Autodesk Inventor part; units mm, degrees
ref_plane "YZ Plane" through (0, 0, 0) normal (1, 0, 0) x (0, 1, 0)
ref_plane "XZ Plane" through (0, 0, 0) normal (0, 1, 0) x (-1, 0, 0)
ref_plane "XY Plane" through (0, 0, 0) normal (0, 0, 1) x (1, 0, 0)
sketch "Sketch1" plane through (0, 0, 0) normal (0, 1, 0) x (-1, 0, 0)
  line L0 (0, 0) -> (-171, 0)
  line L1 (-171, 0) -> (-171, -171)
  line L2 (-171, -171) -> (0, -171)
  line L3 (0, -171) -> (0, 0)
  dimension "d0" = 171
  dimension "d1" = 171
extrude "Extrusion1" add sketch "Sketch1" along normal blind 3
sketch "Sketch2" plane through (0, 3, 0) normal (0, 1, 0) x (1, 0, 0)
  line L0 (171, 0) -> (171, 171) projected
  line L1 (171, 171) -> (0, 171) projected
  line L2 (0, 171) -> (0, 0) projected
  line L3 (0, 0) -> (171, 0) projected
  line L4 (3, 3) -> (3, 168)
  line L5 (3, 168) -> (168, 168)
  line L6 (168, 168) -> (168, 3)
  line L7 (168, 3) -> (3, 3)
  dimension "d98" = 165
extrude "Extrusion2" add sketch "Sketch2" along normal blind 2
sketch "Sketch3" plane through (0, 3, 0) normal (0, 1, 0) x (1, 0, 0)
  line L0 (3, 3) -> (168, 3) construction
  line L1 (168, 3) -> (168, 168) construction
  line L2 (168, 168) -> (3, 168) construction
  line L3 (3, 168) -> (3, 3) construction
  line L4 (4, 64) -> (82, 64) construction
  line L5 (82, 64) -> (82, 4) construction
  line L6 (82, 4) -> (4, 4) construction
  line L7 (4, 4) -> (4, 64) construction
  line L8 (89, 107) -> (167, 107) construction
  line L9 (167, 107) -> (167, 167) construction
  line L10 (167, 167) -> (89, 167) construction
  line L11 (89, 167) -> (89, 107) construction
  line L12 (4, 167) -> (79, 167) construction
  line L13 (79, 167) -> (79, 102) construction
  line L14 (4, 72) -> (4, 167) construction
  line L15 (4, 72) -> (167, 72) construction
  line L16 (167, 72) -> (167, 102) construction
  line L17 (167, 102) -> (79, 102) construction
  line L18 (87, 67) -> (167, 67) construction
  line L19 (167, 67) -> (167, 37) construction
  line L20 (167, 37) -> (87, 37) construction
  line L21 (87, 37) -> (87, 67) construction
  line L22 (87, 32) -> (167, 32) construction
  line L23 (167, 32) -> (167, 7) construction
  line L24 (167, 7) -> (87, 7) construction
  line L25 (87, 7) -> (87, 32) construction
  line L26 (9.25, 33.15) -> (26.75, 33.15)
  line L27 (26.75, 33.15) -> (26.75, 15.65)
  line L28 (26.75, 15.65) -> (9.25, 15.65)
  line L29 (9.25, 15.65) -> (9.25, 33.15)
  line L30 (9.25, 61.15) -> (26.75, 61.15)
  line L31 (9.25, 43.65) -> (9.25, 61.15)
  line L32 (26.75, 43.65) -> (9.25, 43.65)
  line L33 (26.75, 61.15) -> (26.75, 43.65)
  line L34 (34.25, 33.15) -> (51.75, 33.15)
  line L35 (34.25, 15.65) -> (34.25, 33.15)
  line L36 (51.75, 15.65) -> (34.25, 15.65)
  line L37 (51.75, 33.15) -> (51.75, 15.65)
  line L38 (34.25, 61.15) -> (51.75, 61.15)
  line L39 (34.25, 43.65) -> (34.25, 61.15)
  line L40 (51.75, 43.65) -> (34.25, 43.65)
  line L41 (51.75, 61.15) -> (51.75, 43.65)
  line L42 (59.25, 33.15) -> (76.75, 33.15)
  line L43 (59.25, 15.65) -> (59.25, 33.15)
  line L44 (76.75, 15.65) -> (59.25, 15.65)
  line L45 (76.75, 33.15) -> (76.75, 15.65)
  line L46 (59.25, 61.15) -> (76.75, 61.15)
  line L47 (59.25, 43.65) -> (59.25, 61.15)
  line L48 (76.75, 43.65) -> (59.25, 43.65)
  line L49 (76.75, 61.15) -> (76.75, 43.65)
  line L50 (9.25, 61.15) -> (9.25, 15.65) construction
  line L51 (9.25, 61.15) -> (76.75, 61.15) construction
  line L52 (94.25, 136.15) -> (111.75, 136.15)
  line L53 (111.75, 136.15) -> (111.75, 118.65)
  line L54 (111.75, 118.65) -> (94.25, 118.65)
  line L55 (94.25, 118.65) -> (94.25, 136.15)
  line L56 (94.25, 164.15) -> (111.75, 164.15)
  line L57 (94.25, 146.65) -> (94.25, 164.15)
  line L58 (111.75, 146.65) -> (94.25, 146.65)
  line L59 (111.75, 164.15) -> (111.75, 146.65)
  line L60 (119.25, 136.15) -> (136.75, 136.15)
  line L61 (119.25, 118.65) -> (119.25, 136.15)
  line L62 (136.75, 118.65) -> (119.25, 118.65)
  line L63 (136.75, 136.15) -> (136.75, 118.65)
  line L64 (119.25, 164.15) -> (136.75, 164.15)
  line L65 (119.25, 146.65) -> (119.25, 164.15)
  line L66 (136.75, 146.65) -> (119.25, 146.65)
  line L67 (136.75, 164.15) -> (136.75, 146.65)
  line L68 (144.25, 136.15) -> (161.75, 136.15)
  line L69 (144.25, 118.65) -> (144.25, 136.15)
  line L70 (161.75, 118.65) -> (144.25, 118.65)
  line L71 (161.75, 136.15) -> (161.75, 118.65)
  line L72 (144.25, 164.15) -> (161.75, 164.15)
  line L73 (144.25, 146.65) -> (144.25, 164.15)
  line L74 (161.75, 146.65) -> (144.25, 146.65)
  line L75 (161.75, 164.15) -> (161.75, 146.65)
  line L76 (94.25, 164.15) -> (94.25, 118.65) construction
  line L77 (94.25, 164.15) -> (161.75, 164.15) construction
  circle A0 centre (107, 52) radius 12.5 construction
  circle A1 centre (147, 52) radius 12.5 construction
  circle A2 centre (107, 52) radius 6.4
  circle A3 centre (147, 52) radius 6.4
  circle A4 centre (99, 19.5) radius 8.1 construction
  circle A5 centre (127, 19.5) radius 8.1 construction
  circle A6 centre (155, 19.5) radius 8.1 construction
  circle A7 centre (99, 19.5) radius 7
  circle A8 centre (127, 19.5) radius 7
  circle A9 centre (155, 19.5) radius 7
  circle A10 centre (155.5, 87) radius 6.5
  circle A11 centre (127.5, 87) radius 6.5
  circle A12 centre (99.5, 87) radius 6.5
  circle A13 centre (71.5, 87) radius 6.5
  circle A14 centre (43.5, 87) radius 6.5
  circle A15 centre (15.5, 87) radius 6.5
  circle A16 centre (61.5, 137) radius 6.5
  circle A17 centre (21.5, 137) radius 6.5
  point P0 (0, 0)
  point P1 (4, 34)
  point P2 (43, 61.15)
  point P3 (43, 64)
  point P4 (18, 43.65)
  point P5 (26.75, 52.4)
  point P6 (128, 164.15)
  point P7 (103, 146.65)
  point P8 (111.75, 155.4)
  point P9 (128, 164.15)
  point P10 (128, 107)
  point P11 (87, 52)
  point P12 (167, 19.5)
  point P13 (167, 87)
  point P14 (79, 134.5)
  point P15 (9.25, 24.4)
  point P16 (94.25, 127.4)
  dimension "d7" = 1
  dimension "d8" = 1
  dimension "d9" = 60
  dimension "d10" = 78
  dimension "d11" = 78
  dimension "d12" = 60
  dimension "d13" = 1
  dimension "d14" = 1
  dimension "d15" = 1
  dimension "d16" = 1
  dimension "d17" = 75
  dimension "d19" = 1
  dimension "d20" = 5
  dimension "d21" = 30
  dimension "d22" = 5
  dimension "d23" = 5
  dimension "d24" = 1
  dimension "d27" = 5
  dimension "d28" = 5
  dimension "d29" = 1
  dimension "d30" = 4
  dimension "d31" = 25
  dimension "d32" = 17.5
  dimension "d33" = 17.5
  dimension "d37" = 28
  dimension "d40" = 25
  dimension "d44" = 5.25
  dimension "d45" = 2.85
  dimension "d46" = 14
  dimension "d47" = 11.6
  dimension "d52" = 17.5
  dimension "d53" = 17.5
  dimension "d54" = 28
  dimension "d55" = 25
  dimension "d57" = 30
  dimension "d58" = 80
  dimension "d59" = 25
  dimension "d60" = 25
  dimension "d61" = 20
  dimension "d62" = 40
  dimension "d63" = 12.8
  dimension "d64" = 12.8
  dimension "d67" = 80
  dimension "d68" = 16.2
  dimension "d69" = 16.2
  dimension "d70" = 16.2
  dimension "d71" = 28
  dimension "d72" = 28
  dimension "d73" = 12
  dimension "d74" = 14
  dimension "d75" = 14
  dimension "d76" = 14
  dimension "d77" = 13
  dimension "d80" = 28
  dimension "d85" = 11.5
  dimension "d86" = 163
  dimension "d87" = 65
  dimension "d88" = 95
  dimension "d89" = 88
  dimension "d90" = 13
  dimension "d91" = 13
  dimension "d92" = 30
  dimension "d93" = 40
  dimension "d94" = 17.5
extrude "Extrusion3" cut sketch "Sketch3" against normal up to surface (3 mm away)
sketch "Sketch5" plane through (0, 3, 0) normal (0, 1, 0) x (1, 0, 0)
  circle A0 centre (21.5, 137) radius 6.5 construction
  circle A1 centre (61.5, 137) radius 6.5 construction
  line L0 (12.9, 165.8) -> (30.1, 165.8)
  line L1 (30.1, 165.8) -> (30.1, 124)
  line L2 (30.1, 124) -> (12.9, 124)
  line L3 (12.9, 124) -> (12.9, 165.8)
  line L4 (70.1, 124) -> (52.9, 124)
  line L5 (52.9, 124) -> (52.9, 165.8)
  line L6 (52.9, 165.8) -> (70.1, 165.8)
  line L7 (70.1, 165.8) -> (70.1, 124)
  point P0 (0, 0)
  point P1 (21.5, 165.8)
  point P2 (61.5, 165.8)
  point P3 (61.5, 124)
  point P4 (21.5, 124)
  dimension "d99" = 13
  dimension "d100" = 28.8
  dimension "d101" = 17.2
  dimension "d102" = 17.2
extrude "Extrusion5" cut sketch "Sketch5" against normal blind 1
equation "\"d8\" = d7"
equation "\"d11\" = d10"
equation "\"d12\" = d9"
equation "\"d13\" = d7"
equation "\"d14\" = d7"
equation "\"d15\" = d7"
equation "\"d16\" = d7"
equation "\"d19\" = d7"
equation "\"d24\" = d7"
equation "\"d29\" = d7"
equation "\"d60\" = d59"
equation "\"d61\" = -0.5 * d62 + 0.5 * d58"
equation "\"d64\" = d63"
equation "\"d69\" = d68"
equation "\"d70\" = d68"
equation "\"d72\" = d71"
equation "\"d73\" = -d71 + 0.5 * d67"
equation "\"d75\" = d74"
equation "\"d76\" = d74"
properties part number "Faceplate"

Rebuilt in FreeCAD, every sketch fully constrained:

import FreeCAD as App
import Part
import Sketcher

V = App.Vector

doc = App.newDocument("Part")
body = doc.addObject("PartDesign::Body", "Body")

# Sketch on XZ plane
sketch1 = body.newObject("Sketcher::SketchObject", "Sketch")
sketch1.AttachmentSupport = (doc.getObject("XZ_Plane"), [""])
sketch1.MapMode = "FlatFace"
sketch1.addGeometry(Part.LineSegment(V(0, -171, 0), V(0, 0, 0)), False)
sketch1.addGeometry(Part.LineSegment(V(0, 0, 0), V(171, 0, 0)), False)
sketch1.addGeometry(Part.LineSegment(V(171, 0, 0), V(171, -171, 0)), False)
sketch1.addGeometry(Part.LineSegment(V(171, -171, 0), V(0, -171, 0)), False)
sketch1.addConstraint(Sketcher.Constraint("Coincident", 0, 2, 1, 1))
sketch1.addConstraint(Sketcher.Constraint("Coincident", 1, 2, 2, 1))
sketch1.addConstraint(Sketcher.Constraint("Coincident", 2, 2, 3, 1))
sketch1.addConstraint(Sketcher.Constraint("Coincident", 3, 2, 0, 1))
sketch1.addConstraint(Sketcher.Constraint("Vertical", 0))
sketch1.addConstraint(Sketcher.Constraint("Horizontal", 1))
sketch1.addConstraint(Sketcher.Constraint("Vertical", 2))
sketch1.addConstraint(Sketcher.Constraint("Horizontal", 3))
sketch1.addConstraint(Sketcher.Constraint("Coincident", 0, 2, -1, 1))
sketch1.addConstraint(Sketcher.Constraint("Equal", 3, 0))
sketch1.addConstraint(Sketcher.Constraint("DistanceX", 1, 1, 1, 2, 171.0))
pad1 = body.newObject("PartDesign::Pad", "Pad")
pad1.Profile = sketch1
pad1.Length = 3
pad1.Reversed = True

# Sketch on XZ plane
sketch2 = body.newObject("Sketcher::SketchObject", "Sketch001")
sketch2.AttachmentSupport = (doc.getObject("XZ_Plane"), [""])
sketch2.MapMode = "FlatFace"
sketch2.AttachmentOffset = App.Placement(V(0, 0, -3), App.Rotation())
sketch2.addGeometry(Part.LineSegment(V(0, 0, 0), V(171, 0, 0)), False)
sketch2.addGeometry(Part.LineSegment(V(171, 0, 0), V(171, -171, 0)), False)
sketch2.addGeometry(Part.LineSegment(V(171, -171, 0), V(0, -171, 0)), False)
sketch2.addGeometry(Part.LineSegment(V(0, -171, 0), V(0, 0, 0)), False)
sketch2.addGeometry(Part.LineSegment(V(168, -3, 0), V(3, -3, 0)), False)
sketch2.addGeometry(Part.LineSegment(V(3, -3, 0), V(3, -168, 0)), False)
sketch2.addGeometry(Part.LineSegment(V(3, -168, 0), V(168, -168, 0)), False)
sketch2.addGeometry(Part.LineSegment(V(168, -168, 0), V(168, -3, 0)), False)
sketch2.addConstraint(Sketcher.Constraint("Coincident", 0, 2, 1, 1))
sketch2.addConstraint(Sketcher.Constraint("Coincident", 1, 2, 2, 1))
sketch2.addConstraint(Sketcher.Constraint("Coincident", 2, 2, 3, 1))
sketch2.addConstraint(Sketcher.Constraint("Coincident", 3, 2, 0, 1))
sketch2.addConstraint(Sketcher.Constraint("Coincident", 4, 2, 5, 1))
sketch2.addConstraint(Sketcher.Constraint("Coincident", 5, 2, 6, 1))
sketch2.addConstraint(Sketcher.Constraint("Coincident", 6, 2, 7, 1))
sketch2.addConstraint(Sketcher.Constraint("Coincident", 7, 2, 4, 1))
sketch2.addConstraint(Sketcher.Constraint("Horizontal", 0))
sketch2.addConstraint(Sketcher.Constraint("Vertical", 1))
sketch2.addConstraint(Sketcher.Constraint("Horizontal", 2))
sketch2.addConstraint(Sketcher.Constraint("Vertical", 3))
sketch2.addConstraint(Sketcher.Constraint("Horizontal", 4))
sketch2.addConstraint(Sketcher.Constraint("Vertical", 5))
sketch2.addConstraint(Sketcher.Constraint("Horizontal", 6))
sketch2.addConstraint(Sketcher.Constraint("Vertical", 7))
sketch2.addConstraint(Sketcher.Constraint("Coincident", 3, 2, -1, 1))
sketch2.addConstraint(Sketcher.Constraint("Equal", 2, 1))
sketch2.addConstraint(Sketcher.Constraint("Equal", 6, 5))
sketch2.addConstraint(Sketcher.Constraint("DistanceX", 4, 2, 4, 1, 165.0))
sketch2.addConstraint(Sketcher.Constraint("DistanceX", 0, 1, 0, 2, 171.0))
sketch2.addConstraint(Sketcher.Constraint("DistanceX", -1, 1, 4, 2, 3.0))
sketch2.addConstraint(Sketcher.Constraint("DistanceY", 4, 2, -1, 1, 3.0))
pad2 = body.newObject("PartDesign::Pad", "Pad001")
pad2.Profile = sketch2
pad2.Length = 2
pad2.Reversed = True

# Sketch on XZ plane
sketch3 = body.newObject("Sketcher::SketchObject", "Sketch002")
sketch3.AttachmentSupport = (doc.getObject("XZ_Plane"), [""])
sketch3.MapMode = "FlatFace"
sketch3.AttachmentOffset = App.Placement(V(0, 0, -3), App.Rotation())
sketch3.addGeometry(Part.LineSegment(V(26.75, -33.15, 0), V(9.25, -33.15, 0)), False)
sketch3.addGeometry(Part.LineSegment(V(9.25, -33.15, 0), V(9.25, -15.65, 0)), False)
sketch3.addGeometry(Part.LineSegment(V(9.25, -15.65, 0), V(26.75, -15.65, 0)), False)
sketch3.addGeometry(Part.LineSegment(V(26.75, -15.65, 0), V(26.75, -33.15, 0)), False)
sketch3.addGeometry(Part.LineSegment(V(26.75, -61.15, 0), V(9.25, -61.15, 0)), False)
sketch3.addGeometry(Part.LineSegment(V(9.25, -61.15, 0), V(9.25, -43.65, 0)), False)
sketch3.addGeometry(Part.LineSegment(V(9.25, -43.65, 0), V(26.75, -43.65, 0)), False)
sketch3.addGeometry(Part.LineSegment(V(26.75, -43.65, 0), V(26.75, -61.15, 0)), False)
sketch3.addGeometry(Part.LineSegment(V(51.75, -33.15, 0), V(34.25, -33.15, 0)), False)
sketch3.addGeometry(Part.LineSegment(V(34.25, -33.15, 0), V(34.25, -15.65, 0)), False)
sketch3.addGeometry(Part.LineSegment(V(34.25, -15.65, 0), V(51.75, -15.65, 0)), False)
sketch3.addGeometry(Part.LineSegment(V(51.75, -15.65, 0), V(51.75, -33.15, 0)), False)
sketch3.addGeometry(Part.LineSegment(V(51.75, -61.15, 0), V(34.25, -61.15, 0)), False)
sketch3.addGeometry(Part.LineSegment(V(34.25, -61.15, 0), V(34.25, -43.65, 0)), False)
sketch3.addGeometry(Part.LineSegment(V(34.25, -43.65, 0), V(51.75, -43.65, 0)), False)
sketch3.addGeometry(Part.LineSegment(V(51.75, -43.65, 0), V(51.75, -61.15, 0)), False)
sketch3.addGeometry(Part.LineSegment(V(76.75, -33.15, 0), V(59.25, -33.15, 0)), False)
sketch3.addGeometry(Part.LineSegment(V(59.25, -33.15, 0), V(59.25, -15.65, 0)), False)
sketch3.addGeometry(Part.LineSegment(V(59.25, -15.65, 0), V(76.75, -15.65, 0)), False)
sketch3.addGeometry(Part.LineSegment(V(76.75, -15.65, 0), V(76.75, -33.15, 0)), False)
sketch3.addGeometry(Part.LineSegment(V(76.75, -61.15, 0), V(59.25, -61.15, 0)), False)
sketch3.addGeometry(Part.LineSegment(V(59.25, -61.15, 0), V(59.25, -43.65, 0)), False)
sketch3.addGeometry(Part.LineSegment(V(59.25, -43.65, 0), V(76.75, -43.65, 0)), False)
sketch3.addGeometry(Part.LineSegment(V(76.75, -43.65, 0), V(76.75, -61.15, 0)), False)
sketch3.addGeometry(Part.LineSegment(V(111.75, -136.15, 0), V(94.25, -136.15, 0)), False)
sketch3.addGeometry(Part.LineSegment(V(94.25, -136.15, 0), V(94.25, -118.65, 0)), False)
sketch3.addGeometry(Part.LineSegment(V(94.25, -118.65, 0), V(111.75, -118.65, 0)), False)
sketch3.addGeometry(Part.LineSegment(V(111.75, -118.65, 0), V(111.75, -136.15, 0)), False)
sketch3.addGeometry(Part.LineSegment(V(111.75, -164.15, 0), V(94.25, -164.15, 0)), False)
sketch3.addGeometry(Part.LineSegment(V(94.25, -164.15, 0), V(94.25, -146.65, 0)), False)
sketch3.addGeometry(Part.LineSegment(V(94.25, -146.65, 0), V(111.75, -146.65, 0)), False)
sketch3.addGeometry(Part.LineSegment(V(111.75, -146.65, 0), V(111.75, -164.15, 0)), False)
sketch3.addGeometry(Part.LineSegment(V(136.75, -136.15, 0), V(119.25, -136.15, 0)), False)
sketch3.addGeometry(Part.LineSegment(V(119.25, -136.15, 0), V(119.25, -118.65, 0)), False)
sketch3.addGeometry(Part.LineSegment(V(119.25, -118.65, 0), V(136.75, -118.65, 0)), False)
sketch3.addGeometry(Part.LineSegment(V(136.75, -118.65, 0), V(136.75, -136.15, 0)), False)
sketch3.addGeometry(Part.LineSegment(V(136.75, -164.15, 0), V(119.25, -164.15, 0)), False)
sketch3.addGeometry(Part.LineSegment(V(119.25, -164.15, 0), V(119.25, -146.65, 0)), False)
sketch3.addGeometry(Part.LineSegment(V(119.25, -146.65, 0), V(136.75, -146.65, 0)), False)
sketch3.addGeometry(Part.LineSegment(V(136.75, -146.65, 0), V(136.75, -164.15, 0)), False)
sketch3.addGeometry(Part.LineSegment(V(161.75, -136.15, 0), V(144.25, -136.15, 0)), False)
sketch3.addGeometry(Part.LineSegment(V(144.25, -136.15, 0), V(144.25, -118.65, 0)), False)
sketch3.addGeometry(Part.LineSegment(V(144.25, -118.65, 0), V(161.75, -118.65, 0)), False)
sketch3.addGeometry(Part.LineSegment(V(161.75, -118.65, 0), V(161.75, -136.15, 0)), False)
sketch3.addGeometry(Part.LineSegment(V(161.75, -164.15, 0), V(144.25, -164.15, 0)), False)
sketch3.addGeometry(Part.LineSegment(V(144.25, -164.15, 0), V(144.25, -146.65, 0)), False)
sketch3.addGeometry(Part.LineSegment(V(144.25, -146.65, 0), V(161.75, -146.65, 0)), False)
sketch3.addGeometry(Part.LineSegment(V(161.75, -146.65, 0), V(161.75, -164.15, 0)), False)
sketch3.addGeometry(Part.Circle(V(107, -52, 0), V(0, 0, 1), 6.4), False)
sketch3.addGeometry(Part.Circle(V(147, -52, 0), V(0, 0, 1), 6.4), False)
sketch3.addGeometry(Part.Circle(V(99, -19.5, 0), V(0, 0, 1), 7), False)
sketch3.addGeometry(Part.Circle(V(127, -19.5, 0), V(0, 0, 1), 7), False)
sketch3.addGeometry(Part.Circle(V(155, -19.5, 0), V(0, 0, 1), 7), False)
sketch3.addGeometry(Part.Circle(V(155.5, -87, 0), V(0, 0, 1), 6.5), False)
sketch3.addGeometry(Part.Circle(V(127.5, -87, 0), V(0, 0, 1), 6.5), False)
sketch3.addGeometry(Part.Circle(V(99.5, -87, 0), V(0, 0, 1), 6.5), False)
sketch3.addGeometry(Part.Circle(V(71.5, -87, 0), V(0, 0, 1), 6.5), False)
sketch3.addGeometry(Part.Circle(V(43.5, -87, 0), V(0, 0, 1), 6.5), False)
sketch3.addGeometry(Part.Circle(V(15.5, -87, 0), V(0, 0, 1), 6.5), False)
sketch3.addGeometry(Part.Circle(V(61.5, -137, 0), V(0, 0, 1), 6.5), False)
sketch3.addGeometry(Part.Circle(V(21.5, -137, 0), V(0, 0, 1), 6.5), False)
sketch3.addConstraint(Sketcher.Constraint("Coincident", 0, 2, 1, 1))
sketch3.addConstraint(Sketcher.Constraint("Coincident", 1, 2, 2, 1))
sketch3.addConstraint(Sketcher.Constraint("Coincident", 2, 2, 3, 1))
sketch3.addConstraint(Sketcher.Constraint("Coincident", 3, 2, 0, 1))
sketch3.addConstraint(Sketcher.Constraint("Coincident", 4, 2, 5, 1))
sketch3.addConstraint(Sketcher.Constraint("Coincident", 5, 2, 6, 1))
sketch3.addConstraint(Sketcher.Constraint("Coincident", 6, 2, 7, 1))
sketch3.addConstraint(Sketcher.Constraint("Coincident", 7, 2, 4, 1))
sketch3.addConstraint(Sketcher.Constraint("Coincident", 8, 2, 9, 1))
sketch3.addConstraint(Sketcher.Constraint("Coincident", 9, 2, 10, 1))
sketch3.addConstraint(Sketcher.Constraint("Coincident", 10, 2, 11, 1))
sketch3.addConstraint(Sketcher.Constraint("Coincident", 11, 2, 8, 1))
sketch3.addConstraint(Sketcher.Constraint("Coincident", 12, 2, 13, 1))
sketch3.addConstraint(Sketcher.Constraint("Coincident", 13, 2, 14, 1))
sketch3.addConstraint(Sketcher.Constraint("Coincident", 14, 2, 15, 1))
sketch3.addConstraint(Sketcher.Constraint("Coincident", 15, 2, 12, 1))
sketch3.addConstraint(Sketcher.Constraint("Coincident", 16, 2, 17, 1))
sketch3.addConstraint(Sketcher.Constraint("Coincident", 17, 2, 18, 1))
sketch3.addConstraint(Sketcher.Constraint("Coincident", 18, 2, 19, 1))
sketch3.addConstraint(Sketcher.Constraint("Coincident", 19, 2, 16, 1))
sketch3.addConstraint(Sketcher.Constraint("Coincident", 20, 2, 21, 1))
sketch3.addConstraint(Sketcher.Constraint("Coincident", 21, 2, 22, 1))
sketch3.addConstraint(Sketcher.Constraint("Coincident", 22, 2, 23, 1))
sketch3.addConstraint(Sketcher.Constraint("Coincident", 23, 2, 20, 1))
sketch3.addConstraint(Sketcher.Constraint("Coincident", 24, 2, 25, 1))
sketch3.addConstraint(Sketcher.Constraint("Coincident", 25, 2, 26, 1))
sketch3.addConstraint(Sketcher.Constraint("Coincident", 26, 2, 27, 1))
sketch3.addConstraint(Sketcher.Constraint("Coincident", 27, 2, 24, 1))
sketch3.addConstraint(Sketcher.Constraint("Coincident", 28, 2, 29, 1))
sketch3.addConstraint(Sketcher.Constraint("Coincident", 29, 2, 30, 1))
sketch3.addConstraint(Sketcher.Constraint("Coincident", 30, 2, 31, 1))
sketch3.addConstraint(Sketcher.Constraint("Coincident", 31, 2, 28, 1))
sketch3.addConstraint(Sketcher.Constraint("Coincident", 32, 2, 33, 1))
sketch3.addConstraint(Sketcher.Constraint("Coincident", 33, 2, 34, 1))
sketch3.addConstraint(Sketcher.Constraint("Coincident", 34, 2, 35, 1))
sketch3.addConstraint(Sketcher.Constraint("Coincident", 35, 2, 32, 1))
sketch3.addConstraint(Sketcher.Constraint("Coincident", 36, 2, 37, 1))
sketch3.addConstraint(Sketcher.Constraint("Coincident", 37, 2, 38, 1))
sketch3.addConstraint(Sketcher.Constraint("Coincident", 38, 2, 39, 1))
sketch3.addConstraint(Sketcher.Constraint("Coincident", 39, 2, 36, 1))
sketch3.addConstraint(Sketcher.Constraint("Coincident", 40, 2, 41, 1))
sketch3.addConstraint(Sketcher.Constraint("Coincident", 41, 2, 42, 1))
sketch3.addConstraint(Sketcher.Constraint("Coincident", 42, 2, 43, 1))
sketch3.addConstraint(Sketcher.Constraint("Coincident", 43, 2, 40, 1))
sketch3.addConstraint(Sketcher.Constraint("Coincident", 44, 2, 45, 1))
sketch3.addConstraint(Sketcher.Constraint("Coincident", 45, 2, 46, 1))
sketch3.addConstraint(Sketcher.Constraint("Coincident", 46, 2, 47, 1))
sketch3.addConstraint(Sketcher.Constraint("Coincident", 47, 2, 44, 1))
sketch3.addConstraint(Sketcher.Constraint("Horizontal", 0))
sketch3.addConstraint(Sketcher.Constraint("Vertical", 1))
sketch3.addConstraint(Sketcher.Constraint("Horizontal", 2))
sketch3.addConstraint(Sketcher.Constraint("Vertical", 3))
sketch3.addConstraint(Sketcher.Constraint("Horizontal", 4))
sketch3.addConstraint(Sketcher.Constraint("Vertical", 5))
sketch3.addConstraint(Sketcher.Constraint("Horizontal", 6))
sketch3.addConstraint(Sketcher.Constraint("Vertical", 7))
sketch3.addConstraint(Sketcher.Constraint("Horizontal", 8))
sketch3.addConstraint(Sketcher.Constraint("Vertical", 9))
sketch3.addConstraint(Sketcher.Constraint("Horizontal", 10))
sketch3.addConstraint(Sketcher.Constraint("Vertical", 11))
sketch3.addConstraint(Sketcher.Constraint("Horizontal", 12))
sketch3.addConstraint(Sketcher.Constraint("Vertical", 13))
sketch3.addConstraint(Sketcher.Constraint("Horizontal", 14))
sketch3.addConstraint(Sketcher.Constraint("Vertical", 15))
sketch3.addConstraint(Sketcher.Constraint("Horizontal", 16))
sketch3.addConstraint(Sketcher.Constraint("Vertical", 17))
sketch3.addConstraint(Sketcher.Constraint("Horizontal", 18))
sketch3.addConstraint(Sketcher.Constraint("Vertical", 19))
sketch3.addConstraint(Sketcher.Constraint("Horizontal", 20))
sketch3.addConstraint(Sketcher.Constraint("Vertical", 21))
sketch3.addConstraint(Sketcher.Constraint("Horizontal", 22))
sketch3.addConstraint(Sketcher.Constraint("Vertical", 23))
sketch3.addConstraint(Sketcher.Constraint("Horizontal", 24))
sketch3.addConstraint(Sketcher.Constraint("Vertical", 25))
sketch3.addConstraint(Sketcher.Constraint("Horizontal", 26))
sketch3.addConstraint(Sketcher.Constraint("Vertical", 27))
sketch3.addConstraint(Sketcher.Constraint("Horizontal", 28))
sketch3.addConstraint(Sketcher.Constraint("Vertical", 29))
sketch3.addConstraint(Sketcher.Constraint("Horizontal", 30))
sketch3.addConstraint(Sketcher.Constraint("Vertical", 31))
sketch3.addConstraint(Sketcher.Constraint("Horizontal", 32))
sketch3.addConstraint(Sketcher.Constraint("Vertical", 33))
sketch3.addConstraint(Sketcher.Constraint("Horizontal", 34))
sketch3.addConstraint(Sketcher.Constraint("Vertical", 35))
sketch3.addConstraint(Sketcher.Constraint("Horizontal", 36))
sketch3.addConstraint(Sketcher.Constraint("Vertical", 37))
sketch3.addConstraint(Sketcher.Constraint("Horizontal", 38))
sketch3.addConstraint(Sketcher.Constraint("Vertical", 39))
sketch3.addConstraint(Sketcher.Constraint("Horizontal", 40))
sketch3.addConstraint(Sketcher.Constraint("Vertical", 41))
sketch3.addConstraint(Sketcher.Constraint("Horizontal", 42))
sketch3.addConstraint(Sketcher.Constraint("Vertical", 43))
sketch3.addConstraint(Sketcher.Constraint("Horizontal", 44))
sketch3.addConstraint(Sketcher.Constraint("Vertical", 45))
sketch3.addConstraint(Sketcher.Constraint("Horizontal", 46))
sketch3.addConstraint(Sketcher.Constraint("Vertical", 47))
sketch3.addConstraint(Sketcher.Constraint("Equal", 48, 49))
sketch3.addConstraint(Sketcher.Constraint("Equal", 50, 51))
sketch3.addConstraint(Sketcher.Constraint("Equal", 51, 52))
sketch3.addConstraint(Sketcher.Constraint("Equal", 53, 54))
sketch3.addConstraint(Sketcher.Constraint("Equal", 54, 55))
sketch3.addConstraint(Sketcher.Constraint("Equal", 55, 56))
sketch3.addConstraint(Sketcher.Constraint("Equal", 56, 57))
sketch3.addConstraint(Sketcher.Constraint("Equal", 57, 58))
sketch3.addConstraint(Sketcher.Constraint("Equal", 58, 59))
sketch3.addConstraint(Sketcher.Constraint("Equal", 59, 60))
sketch3.addConstraint(Sketcher.Constraint("Horizontal", 48, 3, 49, 3))
sketch3.addConstraint(Sketcher.Constraint("Horizontal", 50, 3, 51, 3))
sketch3.addConstraint(Sketcher.Constraint("Horizontal", 51, 3, 52, 3))
sketch3.addConstraint(Sketcher.Constraint("Horizontal", 53, 3, 54, 3))
sketch3.addConstraint(Sketcher.Constraint("Horizontal", 54, 3, 55, 3))
sketch3.addConstraint(Sketcher.Constraint("Horizontal", 55, 3, 56, 3))
sketch3.addConstraint(Sketcher.Constraint("Horizontal", 56, 3, 57, 3))
sketch3.addConstraint(Sketcher.Constraint("Horizontal", 57, 3, 58, 3))
sketch3.addConstraint(Sketcher.Constraint("Horizontal", 59, 3, 60, 3))
sketch3.addConstraint(Sketcher.Constraint("Horizontal", 3, 2, 8, 2))
sketch3.addConstraint(Sketcher.Constraint("Horizontal", 2, 2, 9, 2))
sketch3.addConstraint(Sketcher.Constraint("Horizontal", 7, 2, 12, 2))
sketch3.addConstraint(Sketcher.Constraint("Horizontal", 6, 2, 13, 2))
sketch3.addConstraint(Sketcher.Constraint("Horizontal", 11, 2, 16, 2))
sketch3.addConstraint(Sketcher.Constraint("Horizontal", 10, 2, 17, 2))
sketch3.addConstraint(Sketcher.Constraint("Horizontal", 15, 2, 20, 2))
sketch3.addConstraint(Sketcher.Constraint("Horizontal", 14, 2, 21, 2))
sketch3.addConstraint(Sketcher.Constraint("Horizontal", 27, 2, 32, 2))
sketch3.addConstraint(Sketcher.Constraint("Horizontal", 26, 2, 33, 2))
sketch3.addConstraint(Sketcher.Constraint("Horizontal", 31, 2, 36, 2))
sketch3.addConstraint(Sketcher.Constraint("Horizontal", 30, 2, 37, 2))
sketch3.addConstraint(Sketcher.Constraint("Horizontal", 35, 2, 40, 2))
sketch3.addConstraint(Sketcher.Constraint("Horizontal", 34, 2, 41, 2))
sketch3.addConstraint(Sketcher.Constraint("Horizontal", 39, 2, 44, 2))
sketch3.addConstraint(Sketcher.Constraint("Horizontal", 38, 2, 45, 2))
sketch3.addConstraint(Sketcher.Constraint("Vertical", 1, 2, 4, 2))
sketch3.addConstraint(Sketcher.Constraint("Vertical", 3, 2, 6, 2))
sketch3.addConstraint(Sketcher.Constraint("Vertical", 9, 2, 12, 2))
sketch3.addConstraint(Sketcher.Constraint("Vertical", 11, 2, 14, 2))
sketch3.addConstraint(Sketcher.Constraint("Vertical", 17, 2, 20, 2))
sketch3.addConstraint(Sketcher.Constraint("Vertical", 19, 2, 22, 2))
sketch3.addConstraint(Sketcher.Constraint("Vertical", 25, 2, 28, 2))
sketch3.addConstraint(Sketcher.Constraint("Vertical", 27, 2, 30, 2))
sketch3.addConstraint(Sketcher.Constraint("Vertical", 33, 2, 36, 2))
sketch3.addConstraint(Sketcher.Constraint("Vertical", 35, 2, 38, 2))
sketch3.addConstraint(Sketcher.Constraint("Vertical", 41, 2, 44, 2))
sketch3.addConstraint(Sketcher.Constraint("Vertical", 43, 2, 46, 2))
sketch3.addConstraint(Sketcher.Constraint("Equal", 6, 8))
sketch3.addConstraint(Sketcher.Constraint("Equal", 14, 16))
sketch3.addConstraint(Sketcher.Constraint("Equal", 22, 24))
sketch3.addConstraint(Sketcher.Constraint("Equal", 30, 32))
sketch3.addConstraint(Sketcher.Constraint("Equal", 38, 40))
sketch3.addConstraint(Sketcher.Constraint("Equal", 46, 1))
sketch3.addConstraint(Sketcher.Constraint("Equal", 3, 5))
sketch3.addConstraint(Sketcher.Constraint("Equal", 23, 25))
sketch3.addConstraint(Sketcher.Constraint("Equal", 27, 29))
sketch3.addConstraint(Sketcher.Constraint("Diameter", 50, 14.0))
sketch3.addConstraint(Sketcher.Constraint("Diameter", 53, 13.0))
sketch3.addConstraint(Sketcher.Constraint("Diameter", 48, 12.8))
sketch3.addConstraint(Sketcher.Constraint("DistanceX", 0, 2, 0, 1, 17.5))
sketch3.addConstraint(Sketcher.Constraint("DistanceX", -1, 1, 48, 3, 107.0))
sketch3.addConstraint(Sketcher.Constraint("DistanceY", 48, 3, -1, 1, 52.0))
sketch3.addConstraint(Sketcher.Constraint("DistanceX", -1, 1, 49, 3, 147.0))
sketch3.addConstraint(Sketcher.Constraint("DistanceX", -1, 1, 50, 3, 99.0))
sketch3.addConstraint(Sketcher.Constraint("DistanceX", -1, 1, 51, 3, 127.0))
sketch3.addConstraint(Sketcher.Constraint("DistanceX", -1, 1, 52, 3, 155.0))
sketch3.addConstraint(Sketcher.Constraint("DistanceY", 53, 3, -1, 1, 87.0))
sketch3.addConstraint(Sketcher.Constraint("DistanceY", 59, 3, -1, 1, 137.0))
sketch3.addConstraint(Sketcher.Constraint("DistanceY", 50, 3, -1, 1, 19.5))
sketch3.addConstraint(Sketcher.Constraint("DistanceX", -1, 1, 53, 3, 155.5))
sketch3.addConstraint(Sketcher.Constraint("DistanceX", -1, 1, 54, 3, 127.5))
sketch3.addConstraint(Sketcher.Constraint("DistanceX", -1, 1, 55, 3, 99.5))
sketch3.addConstraint(Sketcher.Constraint("DistanceX", -1, 1, 56, 3, 71.5))
sketch3.addConstraint(Sketcher.Constraint("DistanceX", -1, 1, 57, 3, 43.5))
sketch3.addConstraint(Sketcher.Constraint("DistanceX", -1, 1, 58, 3, 15.5))
sketch3.addConstraint(Sketcher.Constraint("DistanceX", -1, 1, 59, 3, 61.5))
sketch3.addConstraint(Sketcher.Constraint("DistanceX", -1, 1, 60, 3, 21.5))
sketch3.addConstraint(Sketcher.Constraint("DistanceX", -1, 1, 0, 2, 9.25))
sketch3.addConstraint(Sketcher.Constraint("DistanceY", 0, 2, -1, 1, 33.15))
sketch3.addConstraint(Sketcher.Constraint("DistanceY", 4, 2, -1, 1, 61.15))
sketch3.addConstraint(Sketcher.Constraint("DistanceX", -1, 1, 8, 2, 34.25))
sketch3.addConstraint(Sketcher.Constraint("DistanceX", -1, 1, 16, 2, 59.25))
sketch3.addConstraint(Sketcher.Constraint("DistanceX", -1, 1, 24, 2, 94.25))
sketch3.addConstraint(Sketcher.Constraint("DistanceY", 24, 2, -1, 1, 136.15))
sketch3.addConstraint(Sketcher.Constraint("DistanceY", 28, 2, -1, 1, 164.15))
sketch3.addConstraint(Sketcher.Constraint("DistanceX", -1, 1, 32, 2, 119.25))
sketch3.addConstraint(Sketcher.Constraint("DistanceX", -1, 1, 40, 2, 144.25))
pocket1 = body.newObject("PartDesign::Pocket", "Pocket")
pocket1.Profile = sketch3
pocket1.Length = 3
pocket1.Reversed = True

# Sketch on XZ plane
sketch4 = body.newObject("Sketcher::SketchObject", "Sketch003")
sketch4.AttachmentSupport = (doc.getObject("XZ_Plane"), [""])
sketch4.MapMode = "FlatFace"
sketch4.AttachmentOffset = App.Placement(V(0, 0, -3), App.Rotation())
sketch4.addGeometry(Part.LineSegment(V(30.1, -165.8, 0), V(12.9, -165.8, 0)), False)
sketch4.addGeometry(Part.LineSegment(V(12.9, -165.8, 0), V(12.9, -124, 0)), False)
sketch4.addGeometry(Part.LineSegment(V(12.9, -124, 0), V(30.1, -124, 0)), False)
sketch4.addGeometry(Part.LineSegment(V(30.1, -124, 0), V(30.1, -165.8, 0)), False)
sketch4.addGeometry(Part.LineSegment(V(52.9, -124, 0), V(70.1, -124, 0)), False)
sketch4.addGeometry(Part.LineSegment(V(70.1, -124, 0), V(70.1, -165.8, 0)), False)
sketch4.addGeometry(Part.LineSegment(V(70.1, -165.8, 0), V(52.9, -165.8, 0)), False)
sketch4.addGeometry(Part.LineSegment(V(52.9, -165.8, 0), V(52.9, -124, 0)), False)
sketch4.addConstraint(Sketcher.Constraint("Coincident", 0, 2, 1, 1))
sketch4.addConstraint(Sketcher.Constraint("Coincident", 1, 2, 2, 1))
sketch4.addConstraint(Sketcher.Constraint("Coincident", 2, 2, 3, 1))
sketch4.addConstraint(Sketcher.Constraint("Coincident", 3, 2, 0, 1))
sketch4.addConstraint(Sketcher.Constraint("Coincident", 4, 2, 5, 1))
sketch4.addConstraint(Sketcher.Constraint("Coincident", 5, 2, 6, 1))
sketch4.addConstraint(Sketcher.Constraint("Coincident", 6, 2, 7, 1))
sketch4.addConstraint(Sketcher.Constraint("Coincident", 7, 2, 4, 1))
sketch4.addConstraint(Sketcher.Constraint("Horizontal", 0))
sketch4.addConstraint(Sketcher.Constraint("Vertical", 1))
sketch4.addConstraint(Sketcher.Constraint("Horizontal", 2))
sketch4.addConstraint(Sketcher.Constraint("Vertical", 3))
sketch4.addConstraint(Sketcher.Constraint("Horizontal", 4))
sketch4.addConstraint(Sketcher.Constraint("Vertical", 5))
sketch4.addConstraint(Sketcher.Constraint("Horizontal", 6))
sketch4.addConstraint(Sketcher.Constraint("Vertical", 7))
sketch4.addConstraint(Sketcher.Constraint("Horizontal", 2, 2, 4, 2))
sketch4.addConstraint(Sketcher.Constraint("Horizontal", 3, 2, 5, 2))
sketch4.addConstraint(Sketcher.Constraint("Equal", 2, 4))
sketch4.addConstraint(Sketcher.Constraint("DistanceX", 0, 2, 0, 1, 17.2))
sketch4.addConstraint(Sketcher.Constraint("DistanceY", 1, 1, 1, 2, 41.8))
sketch4.addConstraint(Sketcher.Constraint("DistanceY", 1, 2, -1, 1, 124.0))
sketch4.addConstraint(Sketcher.Constraint("DistanceX", 2, 2, 4, 2, 40.0))
sketch4.addConstraint(Sketcher.Constraint("DistanceX", -1, 1, 0, 2, 12.9))
pocket2 = body.newObject("PartDesign::Pocket", "Pocket001")
pocket2.Profile = sketch4
pocket2.Length = 1
pocket2.Reversed = True

doc.recompute()
